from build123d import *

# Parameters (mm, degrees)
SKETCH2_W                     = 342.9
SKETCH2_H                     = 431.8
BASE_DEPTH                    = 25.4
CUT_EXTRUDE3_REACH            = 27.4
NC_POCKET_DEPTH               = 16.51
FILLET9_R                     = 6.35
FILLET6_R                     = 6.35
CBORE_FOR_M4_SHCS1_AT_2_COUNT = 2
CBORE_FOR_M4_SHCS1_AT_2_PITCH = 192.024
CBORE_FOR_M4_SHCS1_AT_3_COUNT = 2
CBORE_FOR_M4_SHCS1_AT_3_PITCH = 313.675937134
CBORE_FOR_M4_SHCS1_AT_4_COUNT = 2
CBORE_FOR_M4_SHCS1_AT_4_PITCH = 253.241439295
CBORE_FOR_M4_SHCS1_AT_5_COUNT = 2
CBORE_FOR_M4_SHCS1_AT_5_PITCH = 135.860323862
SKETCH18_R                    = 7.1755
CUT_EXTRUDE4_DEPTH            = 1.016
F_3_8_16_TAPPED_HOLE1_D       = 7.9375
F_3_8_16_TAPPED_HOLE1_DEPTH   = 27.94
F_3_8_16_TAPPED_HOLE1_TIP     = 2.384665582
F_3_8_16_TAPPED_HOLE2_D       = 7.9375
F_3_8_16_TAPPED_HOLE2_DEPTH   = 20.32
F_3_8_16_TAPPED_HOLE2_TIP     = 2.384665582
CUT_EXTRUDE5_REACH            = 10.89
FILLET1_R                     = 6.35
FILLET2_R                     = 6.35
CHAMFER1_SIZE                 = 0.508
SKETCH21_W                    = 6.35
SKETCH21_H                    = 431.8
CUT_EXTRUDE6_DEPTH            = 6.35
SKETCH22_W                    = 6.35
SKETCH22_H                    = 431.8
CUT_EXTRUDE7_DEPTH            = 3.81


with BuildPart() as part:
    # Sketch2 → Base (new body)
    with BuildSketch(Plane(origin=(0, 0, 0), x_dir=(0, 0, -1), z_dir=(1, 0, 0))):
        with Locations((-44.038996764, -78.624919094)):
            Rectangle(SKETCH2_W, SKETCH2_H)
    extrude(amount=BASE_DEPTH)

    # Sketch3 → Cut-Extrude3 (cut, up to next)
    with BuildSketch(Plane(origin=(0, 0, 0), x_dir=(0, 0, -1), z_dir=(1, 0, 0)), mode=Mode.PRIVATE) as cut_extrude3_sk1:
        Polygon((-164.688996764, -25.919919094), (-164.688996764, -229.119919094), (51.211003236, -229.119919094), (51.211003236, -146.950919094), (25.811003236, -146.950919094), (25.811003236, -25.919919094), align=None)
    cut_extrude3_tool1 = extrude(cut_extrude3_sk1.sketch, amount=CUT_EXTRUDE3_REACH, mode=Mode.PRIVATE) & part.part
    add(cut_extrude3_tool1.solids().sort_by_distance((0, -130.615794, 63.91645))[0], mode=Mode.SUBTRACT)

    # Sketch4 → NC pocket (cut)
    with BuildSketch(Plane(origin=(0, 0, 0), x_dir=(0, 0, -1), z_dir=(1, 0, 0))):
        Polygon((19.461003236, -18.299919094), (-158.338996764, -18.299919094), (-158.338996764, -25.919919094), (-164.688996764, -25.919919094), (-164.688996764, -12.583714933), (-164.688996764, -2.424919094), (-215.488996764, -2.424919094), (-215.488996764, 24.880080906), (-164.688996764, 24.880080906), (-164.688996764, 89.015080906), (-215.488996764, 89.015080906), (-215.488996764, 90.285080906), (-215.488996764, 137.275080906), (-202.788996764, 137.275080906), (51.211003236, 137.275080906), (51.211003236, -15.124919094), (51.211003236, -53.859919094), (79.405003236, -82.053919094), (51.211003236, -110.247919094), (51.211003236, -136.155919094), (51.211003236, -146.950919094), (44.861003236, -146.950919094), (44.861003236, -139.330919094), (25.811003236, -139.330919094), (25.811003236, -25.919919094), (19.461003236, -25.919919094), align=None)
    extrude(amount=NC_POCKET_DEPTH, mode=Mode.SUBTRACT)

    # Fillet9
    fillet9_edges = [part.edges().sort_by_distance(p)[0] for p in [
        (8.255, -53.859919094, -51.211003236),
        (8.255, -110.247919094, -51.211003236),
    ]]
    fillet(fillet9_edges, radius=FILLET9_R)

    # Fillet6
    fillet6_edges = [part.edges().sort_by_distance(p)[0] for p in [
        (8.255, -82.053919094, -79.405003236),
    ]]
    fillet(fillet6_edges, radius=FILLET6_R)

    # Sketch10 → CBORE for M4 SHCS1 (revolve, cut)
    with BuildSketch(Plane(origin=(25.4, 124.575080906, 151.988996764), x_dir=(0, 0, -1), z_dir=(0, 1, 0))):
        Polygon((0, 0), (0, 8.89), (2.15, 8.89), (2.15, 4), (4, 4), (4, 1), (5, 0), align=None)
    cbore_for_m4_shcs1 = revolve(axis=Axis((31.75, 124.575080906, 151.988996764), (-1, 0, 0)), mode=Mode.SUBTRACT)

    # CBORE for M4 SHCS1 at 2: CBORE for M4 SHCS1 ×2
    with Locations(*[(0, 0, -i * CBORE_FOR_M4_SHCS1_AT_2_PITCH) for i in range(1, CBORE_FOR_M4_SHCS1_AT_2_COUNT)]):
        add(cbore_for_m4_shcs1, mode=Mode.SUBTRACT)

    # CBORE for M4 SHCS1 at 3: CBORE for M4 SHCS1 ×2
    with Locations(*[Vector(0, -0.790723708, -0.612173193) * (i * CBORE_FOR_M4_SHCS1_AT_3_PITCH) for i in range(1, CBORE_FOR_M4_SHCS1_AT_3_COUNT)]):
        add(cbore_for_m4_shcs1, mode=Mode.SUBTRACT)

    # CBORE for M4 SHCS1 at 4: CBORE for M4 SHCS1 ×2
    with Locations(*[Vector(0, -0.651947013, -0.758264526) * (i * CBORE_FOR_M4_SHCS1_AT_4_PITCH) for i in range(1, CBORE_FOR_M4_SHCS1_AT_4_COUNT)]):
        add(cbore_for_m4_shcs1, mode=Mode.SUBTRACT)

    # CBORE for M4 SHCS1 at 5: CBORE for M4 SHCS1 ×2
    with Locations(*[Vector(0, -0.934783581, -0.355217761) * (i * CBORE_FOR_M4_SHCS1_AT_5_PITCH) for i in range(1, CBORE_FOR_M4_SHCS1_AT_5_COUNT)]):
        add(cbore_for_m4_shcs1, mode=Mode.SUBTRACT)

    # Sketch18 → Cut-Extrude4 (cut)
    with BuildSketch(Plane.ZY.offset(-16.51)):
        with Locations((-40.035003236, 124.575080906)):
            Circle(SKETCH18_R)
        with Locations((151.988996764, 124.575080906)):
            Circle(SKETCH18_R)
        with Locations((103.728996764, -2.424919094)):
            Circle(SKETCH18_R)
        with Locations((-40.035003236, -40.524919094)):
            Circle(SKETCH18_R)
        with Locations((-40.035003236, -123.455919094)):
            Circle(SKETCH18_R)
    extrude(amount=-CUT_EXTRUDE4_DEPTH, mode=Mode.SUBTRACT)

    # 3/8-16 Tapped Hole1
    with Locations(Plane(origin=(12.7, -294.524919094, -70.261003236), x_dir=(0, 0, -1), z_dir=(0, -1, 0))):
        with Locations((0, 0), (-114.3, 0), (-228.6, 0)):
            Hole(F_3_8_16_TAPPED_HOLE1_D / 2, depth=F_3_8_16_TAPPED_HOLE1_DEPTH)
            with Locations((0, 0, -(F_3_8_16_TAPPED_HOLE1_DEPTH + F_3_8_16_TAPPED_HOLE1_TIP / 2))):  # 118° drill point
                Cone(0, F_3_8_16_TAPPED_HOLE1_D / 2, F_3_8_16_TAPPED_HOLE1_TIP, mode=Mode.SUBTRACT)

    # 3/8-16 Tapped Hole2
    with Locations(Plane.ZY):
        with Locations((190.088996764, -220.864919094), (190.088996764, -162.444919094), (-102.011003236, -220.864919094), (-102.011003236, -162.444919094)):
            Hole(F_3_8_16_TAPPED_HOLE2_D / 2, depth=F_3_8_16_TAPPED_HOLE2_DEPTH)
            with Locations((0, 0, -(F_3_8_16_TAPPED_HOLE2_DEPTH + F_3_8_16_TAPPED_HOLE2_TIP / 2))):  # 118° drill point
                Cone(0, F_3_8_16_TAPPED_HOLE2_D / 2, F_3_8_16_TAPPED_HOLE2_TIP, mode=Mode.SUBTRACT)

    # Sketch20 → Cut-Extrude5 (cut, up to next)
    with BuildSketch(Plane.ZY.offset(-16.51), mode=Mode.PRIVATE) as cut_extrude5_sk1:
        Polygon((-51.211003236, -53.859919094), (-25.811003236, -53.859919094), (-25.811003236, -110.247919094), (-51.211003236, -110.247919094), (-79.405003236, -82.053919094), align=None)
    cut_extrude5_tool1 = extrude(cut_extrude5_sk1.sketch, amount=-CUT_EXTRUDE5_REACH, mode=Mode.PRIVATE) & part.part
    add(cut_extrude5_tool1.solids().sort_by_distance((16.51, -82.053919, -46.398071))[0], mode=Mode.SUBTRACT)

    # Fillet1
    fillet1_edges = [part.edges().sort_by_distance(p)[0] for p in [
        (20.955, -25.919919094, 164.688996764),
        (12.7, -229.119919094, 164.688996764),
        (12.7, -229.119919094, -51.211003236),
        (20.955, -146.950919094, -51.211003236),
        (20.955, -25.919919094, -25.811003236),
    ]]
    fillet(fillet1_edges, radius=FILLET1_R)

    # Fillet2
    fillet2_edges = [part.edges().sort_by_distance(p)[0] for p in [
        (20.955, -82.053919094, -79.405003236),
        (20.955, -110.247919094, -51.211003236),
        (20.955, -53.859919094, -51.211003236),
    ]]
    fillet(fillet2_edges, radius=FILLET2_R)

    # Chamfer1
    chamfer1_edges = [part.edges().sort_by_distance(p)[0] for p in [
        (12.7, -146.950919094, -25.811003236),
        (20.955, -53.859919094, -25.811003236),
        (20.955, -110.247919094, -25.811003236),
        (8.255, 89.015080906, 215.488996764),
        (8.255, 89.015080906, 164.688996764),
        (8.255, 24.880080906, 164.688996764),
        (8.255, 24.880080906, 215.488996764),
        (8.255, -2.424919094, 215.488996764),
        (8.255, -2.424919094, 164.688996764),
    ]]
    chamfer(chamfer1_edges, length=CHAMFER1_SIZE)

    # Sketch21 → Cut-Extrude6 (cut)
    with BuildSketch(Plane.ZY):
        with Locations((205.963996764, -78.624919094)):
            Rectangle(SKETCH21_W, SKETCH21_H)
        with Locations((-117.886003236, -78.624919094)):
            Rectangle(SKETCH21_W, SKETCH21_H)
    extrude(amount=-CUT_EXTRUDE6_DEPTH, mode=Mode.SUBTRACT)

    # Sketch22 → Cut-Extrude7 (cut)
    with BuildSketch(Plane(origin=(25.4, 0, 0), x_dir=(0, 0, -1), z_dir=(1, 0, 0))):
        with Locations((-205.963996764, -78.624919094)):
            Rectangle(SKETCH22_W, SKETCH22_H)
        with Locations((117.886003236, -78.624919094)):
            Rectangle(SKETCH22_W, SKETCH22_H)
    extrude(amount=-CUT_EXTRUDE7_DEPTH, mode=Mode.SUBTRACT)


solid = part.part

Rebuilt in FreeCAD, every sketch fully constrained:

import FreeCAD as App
import Part
import Sketcher
from FreeCAD import Vector
Q = App.Units.Quantity


def edges_at(feature, points):
    """Names of the edges that pass closest to the given points."""
    edges = feature.Shape.Edges
    near = lambda p: min(range(len(edges)), key=lambda i: edges[i].distToShape(Part.Vertex(*p))[0])
    return sorted({f"Edge{near(p) + 1}" for p in points})

doc = App.newDocument("Part")
body = doc.addObject("PartDesign::Body", "Body")

# Sketch on YZ plane
sketch1 = body.newObject("Sketcher::SketchObject", "Sketch")
sketch1.AttachmentSupport = (doc.getObject("YZ_Plane"), [""])
sketch1.MapMode = "FlatFace"
sketch1.addGeometry([
    Part.LineSegment(Vector(137.275081, 215.488997, 0), Vector(-294.524919, 215.488997, 0)),
    Part.LineSegment(Vector(-294.524919, 215.488997, 0), Vector(-294.524919, -127.411003, 0)),
    Part.LineSegment(Vector(-294.524919, -127.411003, 0), Vector(137.275081, -127.411003, 0)),
    Part.LineSegment(Vector(137.275081, -127.411003, 0), Vector(137.275081, 215.488997, 0)),
], False)
sketch1.addConstraint([
    Sketcher.Constraint("Coincident", 0, 2, 1, 1),
    Sketcher.Constraint("Coincident", 1, 2, 2, 1),
    Sketcher.Constraint("Coincident", 2, 2, 3, 1),
    Sketcher.Constraint("Coincident", 3, 2, 0, 1),
    Sketcher.Constraint("Horizontal", 0),
    Sketcher.Constraint("Vertical", 1),
    Sketcher.Constraint("Horizontal", 2),
    Sketcher.Constraint("Vertical", 3),
    Sketcher.Constraint("DistanceX", 0, 2, 0, 1, Q("17 in")),
    Sketcher.Constraint("DistanceY", 1, 2, 1, 1, Q("13.5 in")),
    Sketcher.Constraint("DistanceX", 0, 2, -1, 1, 294.524919),
    Sketcher.Constraint("DistanceY", -1, 1, 0, 2, 215.488997),
])
pad1 = body.newObject("PartDesign::Pad", "Pad")
pad1.Profile = sketch1
pad1.Length = Q("1 in")

# Sketch on YZ plane
sketch2 = body.newObject("Sketcher::SketchObject", "Sketch001")
sketch2.AttachmentSupport = (doc.getObject("YZ_Plane"), [""])
sketch2.MapMode = "FlatFace"
sketch2.addGeometry([
    Part.LineSegment(Vector(-25.919919, 164.688997, 0), Vector(-229.119919, 164.688997, 0)),  # 0
    Part.LineSegment(Vector(-229.119919, 164.688997, 0), Vector(-229.119919, -51.211003, 0)),  # 1
    Part.LineSegment(Vector(-229.119919, -51.211003, 0), Vector(-146.950919, -51.211003, 0)),  # 2
    Part.LineSegment(Vector(-146.950919, -51.211003, 0), Vector(-146.950919, -25.811003, 0)),  # 3
    Part.LineSegment(Vector(-146.950919, -25.811003, 0), Vector(-25.919919, -25.811003, 0)),  # 4
    Part.LineSegment(Vector(-25.919919, -25.811003, 0), Vector(-25.919919, 164.688997, 0)),  # 5
], False)
sketch2.addConstraint([
    Sketcher.Constraint("Coincident", 0, 2, 1, 1),
    Sketcher.Constraint("Coincident", 1, 2, 2, 1),
    Sketcher.Constraint("Coincident", 2, 2, 3, 1),
    Sketcher.Constraint("Coincident", 3, 2, 4, 1),
    Sketcher.Constraint("Coincident", 4, 2, 5, 1),
    Sketcher.Constraint("Coincident", 5, 2, 0, 1),
    Sketcher.Constraint("Horizontal", 0),
    Sketcher.Constraint("Vertical", 1),
    Sketcher.Constraint("Horizontal", 2),
    Sketcher.Constraint("Vertical", 3),
    Sketcher.Constraint("Horizontal", 4),
    Sketcher.Constraint("Vertical", 5),
    Sketcher.Constraint("DistanceX", 0, 2, 0, 1, Q("8 in")),
    Sketcher.Constraint("DistanceY", 3, 1, 3, 2, Q("1 in")),
    Sketcher.Constraint("DistanceY", 1, 2, 1, 1, Q("8.5 in")),
    Sketcher.Constraint("DistanceX", 2, 1, 2, 2, Q("3.235 in")),
    Sketcher.Constraint("DistanceX", 0, 2, -1, 1, 229.119919),
    Sketcher.Constraint("DistanceY", -1, 1, 0, 2, 164.688997),
])
pocket1 = body.newObject("PartDesign::Pocket", "Pocket")
pocket1.Profile = sketch2
pocket1.Type = "UpToFirst"
pocket1.Reversed = True

# Sketch on YZ plane
sketch3 = body.newObject("Sketcher::SketchObject", "Sketch002")
sketch3.AttachmentSupport = (doc.getObject("YZ_Plane"), [""])
sketch3.MapMode = "FlatFace"
sketch3.addGeometry([
    Part.LineSegment(Vector(-18.299919, 158.338997, 0), Vector(-18.299919, -19.461003, 0)),  # 0
    Part.LineSegment(Vector(-18.299919, -19.461003, 0), Vector(-25.919919, -19.461003, 0)),  # 1
    Part.LineSegment(Vector(-25.919919, -19.461003, 0), Vector(-25.919919, -25.811003, 0)),  # 2
    Part.LineSegment(Vector(-25.919919, -25.811003, 0), Vector(-139.330919, -25.811003, 0)),  # 3
    Part.LineSegment(Vector(-139.330919, -25.811003, 0), Vector(-139.330919, -44.861003, 0)),  # 4
    Part.LineSegment(Vector(-139.330919, -44.861003, 0), Vector(-146.950919, -44.861003, 0)),  # 5
    Part.LineSegment(Vector(-146.950919, -44.861003, 0), Vector(-146.950919, -51.211003, 0)),  # 6
    Part.LineSegment(Vector(-146.950919, -51.211003, 0), Vector(-110.247919, -51.211003, 0)),  # 7
    Part.LineSegment(Vector(-110.247919, -51.211003, 0), Vector(-82.053919, -79.405003, 0)),  # 8
    Part.LineSegment(Vector(-82.053919, -79.405003, 0), Vector(-53.859919, -51.211003, 0)),  # 9
    Part.LineSegment(Vector(-53.859919, -51.211003, 0), Vector(137.275081, -51.211003, 0)),  # 10
    Part.LineSegment(Vector(137.275081, -51.211003, 0), Vector(137.275081, 215.488997, 0)),  # 11
    Part.LineSegment(Vector(137.275081, 215.488997, 0), Vector(89.015081, 215.488997, 0)),  # 12
    Part.LineSegment(Vector(89.015081, 215.488997, 0), Vector(89.015081, 164.688997, 0)),  # 13
    Part.LineSegment(Vector(89.015081, 164.688997, 0), Vector(24.880081, 164.688997, 0)),  # 14
    Part.LineSegment(Vector(24.880081, 164.688997, 0), Vector(24.880081, 215.488997, 0)),  # 15
    Part.LineSegment(Vector(24.880081, 215.488997, 0), Vector(-2.424919, 215.488997, 0)),  # 16
    Part.LineSegment(Vector(-2.424919, 215.488997, 0), Vector(-2.424919, 164.688997, 0)),  # 17
    Part.LineSegment(Vector(-2.424919, 164.688997, 0), Vector(-25.919919, 164.688997, 0)),  # 18
    Part.LineSegment(Vector(-25.919919, 164.688997, 0), Vector(-25.919919, 158.338997, 0)),  # 19
    Part.LineSegment(Vector(-25.919919, 158.338997, 0), Vector(-18.299919, 158.338997, 0)),  # 20
], False)
sketch3.addConstraint([
    Sketcher.Constraint("Coincident", 0, 2, 1, 1),
    Sketcher.Constraint("Coincident", 1, 2, 2, 1),
    Sketcher.Constraint("Coincident", 2, 2, 3, 1),
    Sketcher.Constraint("Coincident", 3, 2, 4, 1),
    Sketcher.Constraint("Coincident", 4, 2, 5, 1),
    Sketcher.Constraint("Coincident", 5, 2, 6, 1),
    Sketcher.Constraint("Coincident", 6, 2, 7, 1),
    Sketcher.Constraint("Coincident", 7, 2, 8, 1),
    Sketcher.Constraint("Coincident", 8, 2, 9, 1),
    Sketcher.Constraint("Coincident", 9, 2, 10, 1),
    Sketcher.Constraint("Coincident", 10, 2, 11, 1),
    Sketcher.Constraint("Coincident", 11, 2, 12, 1),
    Sketcher.Constraint("Coincident", 12, 2, 13, 1),
    Sketcher.Constraint("Coincident", 13, 2, 14, 1),
    Sketcher.Constraint("Coincident", 14, 2, 15, 1),
    Sketcher.Constraint("Coincident", 15, 2, 16, 1),
    Sketcher.Constraint("Coincident", 16, 2, 17, 1),
    Sketcher.Constraint("Coincident", 17, 2, 18, 1),
    Sketcher.Constraint("Coincident", 18, 2, 19, 1),
    Sketcher.Constraint("Coincident", 19, 2, 20, 1),
    Sketcher.Constraint("Coincident", 20, 2, 0, 1),
    Sketcher.Constraint("Vertical", 0),
    Sketcher.Constraint("Horizontal", 1),
    Sketcher.Constraint("Vertical", 2),
    Sketcher.Constraint("Horizontal", 3),
    Sketcher.Constraint("Vertical", 4),
    Sketcher.Constraint("Horizontal", 5),
    Sketcher.Constraint("Vertical", 6),
    Sketcher.Constraint("Horizontal", 7),
    Sketcher.Constraint("Horizontal", 10),
    Sketcher.Constraint("Vertical", 11),
    Sketcher.Constraint("Horizontal", 12),
    Sketcher.Constraint("Vertical", 13),
    Sketcher.Constraint("Horizontal", 14),
    Sketcher.Constraint("Vertical", 15),
    Sketcher.Constraint("Horizontal", 16),
    Sketcher.Constraint("Vertical", 17),
    Sketcher.Constraint("Horizontal", 18),
    Sketcher.Constraint("Vertical", 19),
    Sketcher.Constraint("Horizontal", 20),
    Sketcher.Constraint("Perpendicular", 8, 9),
    Sketcher.Constraint("Horizontal", 7, 2, 9, 2),
    Sketcher.Constraint("Horizontal", 12, 2, 15, 2),
    Sketcher.Constraint("Horizontal", 14, 2, 17, 2),
    Sketcher.Constraint("Vertical", 2, 2, 18, 2),
    Sketcher.Constraint("Equal", 1, 5),
    Sketcher.Constraint("Equal", 2, 6),
    Sketcher.Constraint("Equal", 6, 19),
    Sketcher.Constraint("Equal", 8, 9),
    Sketcher.Constraint("DistanceY", 0, 2, 0, 1, Q("7 in")),
    Sketcher.Constraint("DistanceY", 13, 2, 13, 1, Q("2 in")),
    Sketcher.Constraint("DistanceX", 1, 2, 1, 1, Q("0.3 in")),
    Sketcher.Constraint("DistanceX", 12, 2, 12, 1, Q("1.9 in")),
    Sketcher.Constraint("DistanceY", 11, 1, 11, 2, Q("10.5 in")),
    Sketcher.Constraint("DistanceY", 4, 2, 1, 2, Q("1 in")),
    Sketcher.Constraint("DistanceX", 1, 2, 14, 2, Q("2 in")),
    Sketcher.Constraint("DistanceX", 9, 2, 2, 2, Q("1.1 in")),
    Sketcher.Constraint("DistanceX", 16, 2, 12, 2, Q("3.6 in")),
    Sketcher.Constraint("DistanceX", 3, 2, 3, 1, Q("4.465 in")),
    Sketcher.Constraint("DistanceX", 7, 1, 7, 2, Q("1.445 in")),
    Sketcher.Constraint("DistanceX", 10, 1, 10, 2, Q("7.525 in")),
    Sketcher.Constraint("DistanceX", 0, 2, -1, 1, 18.299919),
    Sketcher.Constraint("DistanceY", 0, 2, -1, 1, 19.461003),
])
pocket2 = body.newObject("PartDesign::Pocket", "Pocket001")
pocket2.Profile = sketch3
pocket2.Length = Q("0.65 in")
pocket2.Reversed = True
doc.recompute()

fillet = body.newObject("PartDesign::Fillet", "Fillet")
fillet.Base = (pocket2, edges_at(pocket2, [(8.255, -53.86, -51.211), (8.255, -110.248, -51.211)]))
fillet.Radius = Q("0.25 in")
doc.recompute()

fillet2 = body.newObject("PartDesign::Fillet", "Fillet001")
fillet2.Base = (fillet, edges_at(fillet, [(8.255, -82.054, -79.405)]))
fillet2.Radius = Q("0.25 in")

# Sketch on XZ plane
sketch4 = body.newObject("Sketcher::SketchObject", "Sketch003")
sketch4.AttachmentSupport = (doc.getObject("XZ_Plane"), [""])
sketch4.MapMode = "FlatFace"
sketch4.AttachmentOffset = App.Placement(Vector(0, 0, -124.575081), App.Rotation())
sketch4.addGeometry([
    Part.LineSegment(Vector(16.51, 151.988997, 0), Vector(25.4, 151.988997, 0)),  # 0
    Part.LineSegment(Vector(25.4, 151.988997, 0), Vector(25.4, 146.988997, 0)),  # 1
    Part.LineSegment(Vector(25.4, 146.988997, 0), Vector(24.4, 147.988997, 0)),  # 2
    Part.LineSegment(Vector(24.4, 147.988997, 0), Vector(21.4, 147.988997, 0)),  # 3
    Part.LineSegment(Vector(21.4, 147.988997, 0), Vector(21.4, 149.838997, 0)),  # 4
    Part.LineSegment(Vector(21.4, 149.838997, 0), Vector(16.51, 149.838997, 0)),  # 5
    Part.LineSegment(Vector(16.51, 149.838997, 0), Vector(16.51, 151.988997, 0)),  # 6
], False)
sketch4.addGeometry(Part.LineSegment(Vector(25.4, 151.988997, 0), Vector(16.51, 151.988997, 0)), True)  # axis
sketch4.addConstraint([
    Sketcher.Constraint("Coincident", 0, 2, 1, 1),
    Sketcher.Constraint("Coincident", 1, 2, 2, 1),
    Sketcher.Constraint("Coincident", 2, 2, 3, 1),
    Sketcher.Constraint("Coincident", 3, 2, 4, 1),
    Sketcher.Constraint("Coincident", 4, 2, 5, 1),
    Sketcher.Constraint("Coincident", 5, 2, 6, 1),
    Sketcher.Constraint("Coincident", 6, 2, 0, 1),
    Sketcher.Constraint("Horizontal", 0),
    Sketcher.Constraint("Vertical", 1),
    Sketcher.Constraint("Horizontal", 3),
    Sketcher.Constraint("Vertical", 4),
    Sketcher.Constraint("Horizontal", 5),
    Sketcher.Constraint("Vertical", 6),
    Sketcher.Constraint("Horizontal", 7),
    Sketcher.Constraint("Coincident", 7, 1, 0, 2),
    Sketcher.Constraint("Vertical", 5, 2, 7, 2),
    Sketcher.Constraint("DistanceX", -1, 1, 0, 2, Q("1 in")),
    Sketcher.Constraint("Angle", 2, Q("135 deg")),
    Sketcher.Constraint("DistanceX", 0, 1, 0, 2, Q("0.35 in")),
    Sketcher.Constraint("DistanceX", 3, 2, 3, 1, 3.0),
    Sketcher.Constraint("DistanceX", 5, 2, 5, 1, 4.89),
    Sketcher.Constraint("DistanceY", 1, 2, 1, 1, 5.0),
    Sketcher.Constraint("DistanceY", 4, 1, 4, 2, 1.85),
    Sketcher.Constraint("DistanceY", -1, 1, 0, 2, 151.988997),
])
groove = body.newObject("PartDesign::Groove", "Groove")
groove.Profile = sketch4
groove.ReferenceAxis = (sketch4, ["Axis0"])
groove.Angle = 360
doc.recompute()

linearpattern = body.newObject("PartDesign::LinearPattern", "LinearPattern")
linearpattern.Originals = [groove]
linearpattern.Direction = (doc.getObject("Z_Axis"), [""])
linearpattern.Mode = "offset"
linearpattern.Offset = Q("7.56 in")
linearpattern.Occurrences = 2
linearpattern.Reversed = True
body.Tip = linearpattern
doc.recompute()

datumline = body.newObject("PartDesign::Line", "DatumLine")
datumline.Placement = App.Placement(Vector(0, 0, 0), App.Rotation(Vector(0, 0, 1), Vector(0, -0.790723708, -0.612173193)))
linearpattern2 = body.newObject("PartDesign::LinearPattern", "LinearPattern001")
linearpattern2.Originals = [groove]
linearpattern2.Direction = (datumline, [""])
linearpattern2.Mode = "offset"
linearpattern2.Offset = 313.675937
linearpattern2.Occurrences = 2
body.Tip = linearpattern2
doc.recompute()

datumline2 = body.newObject("PartDesign::Line", "DatumLine001")
datumline2.Placement = App.Placement(Vector(0, 0, 0), App.Rotation(Vector(0, 0, 1), Vector(0, -0.651947013, -0.758264526)))
linearpattern3 = body.newObject("PartDesign::LinearPattern", "LinearPattern002")
linearpattern3.Originals = [groove]
linearpattern3.Direction = (datumline2, [""])
linearpattern3.Mode = "offset"
linearpattern3.Offset = 253.241439
linearpattern3.Occurrences = 2
body.Tip = linearpattern3
doc.recompute()

datumline3 = body.newObject("PartDesign::Line", "DatumLine002")
datumline3.Placement = App.Placement(Vector(0, 0, 0), App.Rotation(Vector(0, 0, 1), Vector(0, -0.934783581, -0.355217761)))
linearpattern4 = body.newObject("PartDesign::LinearPattern", "LinearPattern003")
linearpattern4.Originals = [groove]
linearpattern4.Direction = (datumline3, [""])
linearpattern4.Mode = "offset"
linearpattern4.Offset = 135.860324
linearpattern4.Occurrences = 2
body.Tip = linearpattern4

# Sketch on YZ plane
sketch5 = body.newObject("Sketcher::SketchObject", "Sketch004")
sketch5.AttachmentSupport = (doc.getObject("YZ_Plane"), [""])
sketch5.MapMode = "FlatFace"
sketch5.AttachmentOffset = App.Placement(Vector(0, 0, 0.65 * 25.4), App.Rotation())
sketch5.addGeometry([
    Part.Circle(Vector(124.575081, -40.035003, 0), Vector(0, 0, 1), 7.1755),  # 0
    Part.Circle(Vector(124.575081, 151.988997, 0), Vector(0, 0, 1), 7.1755),  # 1
    Part.Circle(Vector(-2.424919, 103.728997, 0), Vector(0, 0, 1), 7.1755),  # 2
    Part.Circle(Vector(-40.524919, -40.035003, 0), Vector(0, 0, 1), 7.1755),  # 3
    Part.Circle(Vector(-123.455919, -40.035003, 0), Vector(0, 0, 1), 7.1755),  # 4
], False)
sketch5.addConstraint([
    Sketcher.Constraint("Equal", 0, 1),
    Sketcher.Constraint("Equal", 1, 2),
    Sketcher.Constraint("Equal", 2, 3),
    Sketcher.Constraint("Equal", 3, 4),
    Sketcher.Constraint("Horizontal", 0, 3, 3, 3),
    Sketcher.Constraint("Horizontal", 3, 3, 4, 3),
    Sketcher.Constraint("Vertical", 0, 3, 1, 3),
    Sketcher.Constraint("Diameter", 0, Q("0.565 in")),
    Sketcher.Constraint("DistanceX", 2, 3, 1, 3, Q("5 in")),
    Sketcher.Constraint("DistanceY", 2, 3, 1, 3, Q("1.9 in")),
    Sketcher.Constraint("DistanceX", 3, 3, 2, 3, Q("1.5 in")),
    Sketcher.Constraint("DistanceY", 0, 3, 1, 3, Q("7.56 in")),
    Sketcher.Constraint("DistanceX", 4, 3, 3, 3, Q("3.265 in")),
    Sketcher.Constraint("DistanceX", -1, 1, 0, 3, 124.575081),
    Sketcher.Constraint("DistanceY", 0, 3, -1, 1, 40.035003),
])
pocket3 = body.newObject("PartDesign::Pocket", "Pocket002")
pocket3.Profile = sketch5
pocket3.Length = Q("0.04 in")
pocket3.Reversed = True

# Sketch on XZ plane
sketch6 = body.newObject("Sketcher::SketchObject", "Sketch005")
sketch6.AttachmentSupport = (doc.getObject("XZ_Plane"), [""])
sketch6.MapMode = "FlatFace"
sketch6.AttachmentOffset = App.Placement(Vector(0, 0, 294.524919), App.Rotation())
sketch6.addGeometry([
    Part.Circle(Vector(12.7, -70.261003, 0), Vector(0, 0, 1), 3.96875),
    Part.Circle(Vector(12.7, 44.038997, 0), Vector(0, 0, 1), 3.96875),
    Part.Circle(Vector(12.7, 158.338997, 0), Vector(0, 0, 1), 3.96875),
], False)
sketch6.addConstraint([
    Sketcher.Constraint("Equal", 0, 1),
    Sketcher.Constraint("Equal", 1, 2),
    Sketcher.Constraint("Vertical", 0, 3, 1, 3),
    Sketcher.Constraint("Vertical", 1, 3, 2, 3),
    Sketcher.Constraint("Diameter", 0, Q("0.3125 in")),
    Sketcher.Constraint("DistanceY", 0, 3, 2, 3, Q("9 in")),
    Sketcher.Constraint("DistanceX", -1, 1, 0, 3, Q("0.5 in")),
    Sketcher.Constraint("DistanceY", 0, 3, 1, 3, Q("4.5 in")),
    Sketcher.Constraint("DistanceY", 0, 3, -1, 1, 70.261003),
])
doc.recompute()
hole = body.newObject("PartDesign::Hole", "Hole")
hole.Profile = sketch6
hole.ThreadType = "None"
hole.Diameter = Q("0.3125 in")
hole.DepthType = "Dimension"
hole.Depth = Q("1.1 in")
hole.DrillPoint = "Angled"
hole.DrillPointAngle = 118

# Sketch on YZ plane
sketch7 = body.newObject("Sketcher::SketchObject", "Sketch006")
sketch7.AttachmentSupport = (doc.getObject("YZ_Plane"), [""])
sketch7.MapMode = "FlatFace"
sketch7.addGeometry([
    Part.Circle(Vector(-220.864919, 190.088997, 0), Vector(0, 0, 1), 3.96875),
    Part.Circle(Vector(-162.444919, 190.088997, 0), Vector(0, 0, 1), 3.96875),
    Part.Circle(Vector(-220.864919, -102.011003, 0), Vector(0, 0, 1), 3.96875),
    Part.Circle(Vector(-162.444919, -102.011003, 0), Vector(0, 0, 1), 3.96875),
], False)
sketch7.addConstraint([
    Sketcher.Constraint("Equal", 0, 1),
    Sketcher.Constraint("Equal", 1, 2),
    Sketcher.Constraint("Equal", 2, 3),
    Sketcher.Constraint("Horizontal", 0, 3, 1, 3),
    Sketcher.Constraint("Horizontal", 2, 3, 3, 3),
    Sketcher.Constraint("Vertical", 0, 3, 2, 3),
    Sketcher.Constraint("Vertical", 1, 3, 3, 3),
    Sketcher.Constraint("Diameter", 0, Q("0.3125 in")),
    Sketcher.Constraint("DistanceX", 0, 3, 1, 3, Q("2.3 in")),
    Sketcher.Constraint("DistanceY", 2, 3, 0, 3, Q("11.5 in")),
    Sketcher.Constraint("DistanceX", 0, 3, -1, 1, 220.864919),
    Sketcher.Constraint("DistanceY", -1, 1, 0, 3, 190.088997),
])
doc.recompute()
hole2 = body.newObject("PartDesign::Hole", "Hole001")
hole2.Profile = sketch7
hole2.ThreadType = "None"
hole2.Diameter = Q("0.3125 in")
hole2.DepthType = "Dimension"
hole2.Depth = Q("0.8 in")
hole2.DrillPoint = "Angled"
hole2.DrillPointAngle = 118
hole2.Reversed = True

# Sketch on YZ plane
sketch8 = body.newObject("Sketcher::SketchObject", "Sketch007")
sketch8.AttachmentSupport = (doc.getObject("YZ_Plane"), [""])
sketch8.MapMode = "FlatFace"
sketch8.AttachmentOffset = App.Placement(Vector(0, 0, 0.65 * 25.4), App.Rotation())
sketch8.addGeometry([
    Part.LineSegment(Vector(-53.859919, -25.811003, 0), Vector(-53.859919, -51.211003, 0)),  # 0
    Part.LineSegment(Vector(-53.859919, -51.211003, 0), Vector(-82.053919, -79.405003, 0)),  # 1
    Part.LineSegment(Vector(-82.053919, -79.405003, 0), Vector(-110.247919, -51.211003, 0)),  # 2
    Part.LineSegment(Vector(-110.247919, -51.211003, 0), Vector(-110.247919, -25.811003, 0)),  # 3
    Part.LineSegment(Vector(-110.247919, -25.811003, 0), Vector(-53.859919, -25.811003, 0)),  # 4
], False)
sketch8.addConstraint([
    Sketcher.Constraint("Coincident", 0, 2, 1, 1),
    Sketcher.Constraint("Coincident", 1, 2, 2, 1),
    Sketcher.Constraint("Coincident", 2, 2, 3, 1),
    Sketcher.Constraint("Coincident", 3, 2, 4, 1),
    Sketcher.Constraint("Coincident", 4, 2, 0, 1),
    Sketcher.Constraint("Vertical", 0),
    Sketcher.Constraint("Vertical", 3),
    Sketcher.Constraint("Horizontal", 4),
    Sketcher.Constraint("Perpendicular", 1, 2),
    Sketcher.Constraint("Horizontal", 0, 2, 2, 2),
    Sketcher.Constraint("Equal", 1, 2),
    Sketcher.Constraint("DistanceY", 0, 2, 0, 1, Q("1 in")),
    Sketcher.Constraint("DistanceX", 4, 1, 4, 2, Q("2.22 in")),
    Sketcher.Constraint("DistanceX", 0, 2, -1, 1, 53.859919),
    Sketcher.Constraint("DistanceY", 0, 2, -1, 1, 51.211003),
])
pocket4 = body.newObject("PartDesign::Pocket", "Pocket003")
pocket4.Profile = sketch8
pocket4.Type = "UpToFirst"
pocket4.Reversed = True
doc.recompute()

fillet3 = body.newObject("PartDesign::Fillet", "Fillet002")
fillet3.Base = (pocket4, edges_at(pocket4, [
    (20.955, -25.92, 164.689),
    (12.7, -229.12, 164.689),
    (12.7, -229.12, -51.211),
    (20.955, -146.951, -51.211),
    (20.955, -25.92, -25.811),
]))
fillet3.Radius = Q("0.25 in")
doc.recompute()

fillet4 = body.newObject("PartDesign::Fillet", "Fillet003")
fillet4.Base = (fillet3, edges_at(fillet3, [(20.955, -82.054, -79.405), (20.955, -110.248, -51.211), (20.955, -53.86, -51.211)]))
fillet4.Radius = Q("0.25 in")
doc.recompute()

chamfer = body.newObject("PartDesign::Chamfer", "Chamfer")
chamfer.Base = (fillet4, edges_at(fillet4, [
    (12.7, -146.951, -25.811),
    (20.955, -53.86, -25.811),
    (20.955, -110.248, -25.811),
    (8.255, 89.015, 215.489),
    (8.255, 89.015, 164.689),
    (8.255, 24.88, 164.689),
    (8.255, 24.88, 215.489),
    (8.255, -2.425, 215.489),
    (8.255, -2.425, 164.689),
]))
chamfer.Size = Q("0.02 in")

# Sketch on YZ plane
sketch9 = body.newObject("Sketcher::SketchObject", "Sketch008")
sketch9.AttachmentSupport = (doc.getObject("YZ_Plane"), [""])
sketch9.MapMode = "FlatFace"
sketch9.addGeometry([
    Part.LineSegment(Vector(137.275081, 202.788997, 0), Vector(-294.524919, 202.788997, 0)),  # 0
    Part.LineSegment(Vector(-294.524919, 202.788997, 0), Vector(-294.524919, 209.138997, 0)),  # 1
    Part.LineSegment(Vector(-294.524919, 209.138997, 0), Vector(137.275081, 209.138997, 0)),  # 2
    Part.LineSegment(Vector(137.275081, 209.138997, 0), Vector(137.275081, 202.788997, 0)),  # 3
    Part.LineSegment(Vector(137.275081, -121.061003, 0), Vector(-294.524919, -121.061003, 0)),  # 4
    Part.LineSegment(Vector(-294.524919, -121.061003, 0), Vector(-294.524919, -114.711003, 0)),  # 5
    Part.LineSegment(Vector(-294.524919, -114.711003, 0), Vector(137.275081, -114.711003, 0)),  # 6
    Part.LineSegment(Vector(137.275081, -114.711003, 0), Vector(137.275081, -121.061003, 0)),  # 7
], False)
sketch9.addConstraint([
    Sketcher.Constraint("Coincident", 0, 2, 1, 1),
    Sketcher.Constraint("Coincident", 1, 2, 2, 1),
    Sketcher.Constraint("Coincident", 2, 2, 3, 1),
    Sketcher.Constraint("Coincident", 3, 2, 0, 1),
    Sketcher.Constraint("Coincident", 4, 2, 5, 1),
    Sketcher.Constraint("Coincident", 5, 2, 6, 1),
    Sketcher.Constraint("Coincident", 6, 2, 7, 1),
    Sketcher.Constraint("Coincident", 7, 2, 4, 1),
    Sketcher.Constraint("Horizontal", 0),
    Sketcher.Constraint("Vertical", 1),
    Sketcher.Constraint("Horizontal", 2),
    Sketcher.Constraint("Vertical", 3),
    Sketcher.Constraint("Horizontal", 4),
    Sketcher.Constraint("Vertical", 5),
    Sketcher.Constraint("Horizontal", 6),
    Sketcher.Constraint("Vertical", 7),
    Sketcher.Constraint("Vertical", 1, 2, 4, 2),
    Sketcher.Constraint("Vertical", 3, 2, 6, 2),
    Sketcher.Constraint("Equal", 3, 5),
    Sketcher.Constraint("DistanceX", 0, 2, 0, 1, Q("17 in")),
    Sketcher.Constraint("DistanceY", 4, 2, 1, 2, Q("13 in")),
    Sketcher.Constraint("DistanceY", 1, 1, 1, 2, Q("0.25 in")),
    Sketcher.Constraint("DistanceX", 0, 2, -1, 1, 294.524919),
    Sketcher.Constraint("DistanceY", -1, 1, 0, 2, 202.788997),
])
pocket5 = body.newObject("PartDesign::Pocket", "Pocket004")
pocket5.Profile = sketch9
pocket5.Length = Q("0.25 in")
pocket5.Reversed = True

# Sketch on YZ plane
sketch10 = body.newObject("Sketcher::SketchObject", "Sketch009")
sketch10.AttachmentSupport = (doc.getObject("YZ_Plane"), [""])
sketch10.MapMode = "FlatFace"
sketch10.AttachmentOffset = App.Placement(Vector(0, 0, 1 * 25.4), App.Rotation())
sketch10.addGeometry([
    Part.LineSegment(Vector(137.275081, 209.138997, 0), Vector(-294.524919, 209.138997, 0)),  # 0
    Part.LineSegment(Vector(-294.524919, 209.138997, 0), Vector(-294.524919, 202.788997, 0)),  # 1
    Part.LineSegment(Vector(-294.524919, 202.788997, 0), Vector(137.275081, 202.788997, 0)),  # 2
    Part.LineSegment(Vector(137.275081, 202.788997, 0), Vector(137.275081, 209.138997, 0)),  # 3
    Part.LineSegment(Vector(137.275081, -114.711003, 0), Vector(-294.524919, -114.711003, 0)),  # 4
    Part.LineSegment(Vector(-294.524919, -114.711003, 0), Vector(-294.524919, -121.061003, 0)),  # 5
    Part.LineSegment(Vector(-294.524919, -121.061003, 0), Vector(137.275081, -121.061003, 0)),  # 6
    Part.LineSegment(Vector(137.275081, -121.061003, 0), Vector(137.275081, -114.711003, 0)),  # 7
], False)
sketch10.addConstraint([
    Sketcher.Constraint("Coincident", 0, 2, 1, 1),
    Sketcher.Constraint("Coincident", 1, 2, 2, 1),
    Sketcher.Constraint("Coincident", 2, 2, 3, 1),
    Sketcher.Constraint("Coincident", 3, 2, 0, 1),
    Sketcher.Constraint("Coincident", 4, 2, 5, 1),
    Sketcher.Constraint("Coincident", 5, 2, 6, 1),
    Sketcher.Constraint("Coincident", 6, 2, 7, 1),
    Sketcher.Constraint("Coincident", 7, 2, 4, 1),
    Sketcher.Constraint("Horizontal", 0),
    Sketcher.Constraint("Vertical", 1),
    Sketcher.Constraint("Horizontal", 2),
    Sketcher.Constraint("Vertical", 3),
    Sketcher.Constraint("Horizontal", 4),
    Sketcher.Constraint("Vertical", 5),
    Sketcher.Constraint("Horizontal", 6),
    Sketcher.Constraint("Vertical", 7),
    Sketcher.Constraint("Vertical", 1, 2, 4, 2),
    Sketcher.Constraint("Vertical", 3, 2, 6, 2),
    Sketcher.Constraint("Equal", 3, 5),
    Sketcher.Constraint("DistanceX", 0, 2, 0, 1, Q("17 in")),
    Sketcher.Constraint("DistanceY", 5, 2, 0, 2, Q("13 in")),
    Sketcher.Constraint("DistanceY", 1, 2, 1, 1, Q("0.25 in")),
    Sketcher.Constraint("DistanceX", 0, 2, -1, 1, 294.524919),
    Sketcher.Constraint("DistanceY", -1, 1, 0, 2, 209.138997),
])
pocket6 = body.newObject("PartDesign::Pocket", "Pocket005")
pocket6.Profile = sketch10
pocket6.Length = Q("0.15 in")

doc.recompute()
